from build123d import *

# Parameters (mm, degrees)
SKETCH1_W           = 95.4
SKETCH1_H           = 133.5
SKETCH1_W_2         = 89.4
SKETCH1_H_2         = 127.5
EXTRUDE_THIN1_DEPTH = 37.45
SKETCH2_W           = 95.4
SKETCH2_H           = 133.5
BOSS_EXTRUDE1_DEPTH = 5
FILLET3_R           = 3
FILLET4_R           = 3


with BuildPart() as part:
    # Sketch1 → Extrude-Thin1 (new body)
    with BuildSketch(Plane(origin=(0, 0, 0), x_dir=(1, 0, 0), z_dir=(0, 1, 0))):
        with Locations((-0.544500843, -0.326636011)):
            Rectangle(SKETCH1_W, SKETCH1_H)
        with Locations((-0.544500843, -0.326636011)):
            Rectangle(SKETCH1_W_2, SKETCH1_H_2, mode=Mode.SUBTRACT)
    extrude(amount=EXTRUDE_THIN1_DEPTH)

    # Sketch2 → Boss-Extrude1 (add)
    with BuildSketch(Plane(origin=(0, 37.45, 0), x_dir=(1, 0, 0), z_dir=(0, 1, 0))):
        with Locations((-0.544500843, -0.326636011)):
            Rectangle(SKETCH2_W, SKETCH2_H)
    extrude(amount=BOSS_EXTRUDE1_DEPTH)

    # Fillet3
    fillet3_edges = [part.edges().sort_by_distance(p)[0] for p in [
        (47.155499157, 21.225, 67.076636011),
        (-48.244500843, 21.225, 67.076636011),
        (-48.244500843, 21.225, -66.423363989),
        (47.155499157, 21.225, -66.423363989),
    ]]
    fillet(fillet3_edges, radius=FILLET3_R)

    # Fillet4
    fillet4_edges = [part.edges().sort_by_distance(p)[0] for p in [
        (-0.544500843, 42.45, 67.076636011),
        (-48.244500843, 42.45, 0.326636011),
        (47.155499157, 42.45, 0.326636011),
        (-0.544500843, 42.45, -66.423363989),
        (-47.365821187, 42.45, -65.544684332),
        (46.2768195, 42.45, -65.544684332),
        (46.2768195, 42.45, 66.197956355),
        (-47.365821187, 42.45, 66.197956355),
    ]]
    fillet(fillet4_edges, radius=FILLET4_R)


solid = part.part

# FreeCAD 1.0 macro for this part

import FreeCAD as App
import Part
import Sketcher

V = App.Vector


def edges_at(feature, points):
    """Names of the edges that pass closest to the given points."""
    edges = feature.Shape.Edges
    near = lambda p: min(range(len(edges)), key=lambda i: edges[i].distToShape(Part.Vertex(*p))[0])
    return sorted({f"Edge{near(p) + 1}" for p in points})

doc = App.newDocument("Part")
params = doc.addObject("Spreadsheet::Sheet", "Params")
for row, (alias, value) in enumerate([
    ("sketch1_width", "95.4 mm"),
    ("sketch1_width2", "89.4 mm"),
    ("sketch1_height", "133.5 mm"),
    ("sketch1_height2", "127.5 mm"),
    ("pad1_length", "37.45 mm"),
    ("sketch2_width", "95.4 mm"),
    ("sketch2_height", "133.5 mm"),
    ("pad2_length", "5 mm"),
    ("fillet_radius", "3 mm"),
    ("fillet2_radius", "3 mm"),
], start=1):
    params.set(f"A{row}", alias)
    params.set(f"B{row}", "=" + value)
    params.setAlias(f"B{row}", alias)

body = doc.addObject("PartDesign::Body", "Body")

sketch1 = doc.addObject("Sketcher::SketchObject", "Sketch")
body.addObject(sketch1)
sketch1.AttachmentSupport = (doc.XZ_Plane, [""])
sketch1.MapMode = "FlatFace"
sketch1.addGeometry([
    Part.LineSegment(V(-48, -66, 0), V(-48, 67, 0)),
    Part.LineSegment(V(-48, 67, 0), V(47, 67, 0)),
    Part.LineSegment(V(47, 67, 0), V(47, -66, 0)),
    Part.LineSegment(V(47, -66, 0), V(-48, -66, 0)),
    Part.LineSegment(V(44, 64, 0), V(-45, 64, 0)),
    Part.LineSegment(V(-45, 64, 0), V(-45, -63, 0)),
    Part.LineSegment(V(-45, -63, 0), V(44, -63, 0)),
    Part.LineSegment(V(44, -63, 0), V(44, 64, 0)),
], False)
sketch1.addConstraint([
    Sketcher.Constraint("Coincident", 0, 2, 1, 1),
    Sketcher.Constraint("Coincident", 1, 2, 2, 1),
    Sketcher.Constraint("Coincident", 2, 2, 3, 1),
    Sketcher.Constraint("Coincident", 3, 2, 0, 1),
    Sketcher.Constraint("Coincident", 4, 2, 5, 1),
    Sketcher.Constraint("Coincident", 5, 2, 6, 1),
    Sketcher.Constraint("Coincident", 6, 2, 7, 1),
    Sketcher.Constraint("Coincident", 7, 2, 4, 1),
    Sketcher.Constraint("Vertical", 0),
    Sketcher.Constraint("Horizontal", 1),
    Sketcher.Constraint("Vertical", 2),
    Sketcher.Constraint("Horizontal", 3),
    Sketcher.Constraint("Horizontal", 4),
    Sketcher.Constraint("Vertical", 5),
    Sketcher.Constraint("Horizontal", 6),
    Sketcher.Constraint("Vertical", 7),
    Sketcher.Constraint("DistanceX", 1, 1, 1, 2, 95.4),
    Sketcher.Constraint("DistanceX", 4, 2, 4, 1, 89.4),
    Sketcher.Constraint("DistanceY", 0, 1, 0, 2, 133.5),
    Sketcher.Constraint("DistanceY", 5, 2, 5, 1, 127.5),
    Sketcher.Constraint("DistanceX", 0, 2, 4, 2, 3.0),
    Sketcher.Constraint("DistanceY", 4, 2, 0, 2, 3.0),
    Sketcher.Constraint("DistanceX", 0, 2, -1, 1, 48.244501),
    Sketcher.Constraint("DistanceY", -1, 1, 0, 2, 67.076636),
])
sketch1.setExpression("Constraints[16]", "Params.sketch1_width")
sketch1.setExpression("Constraints[17]", "Params.sketch1_width2")
sketch1.setExpression("Constraints[18]", "Params.sketch1_height")
sketch1.setExpression("Constraints[19]", "Params.sketch1_height2")
pad1 = doc.addObject("PartDesign::Pad", "Pad")
body.addObject(pad1)
pad1.Profile = sketch1
pad1.setExpression("Length", "Params.pad1_length")
pad1.Reversed = True

sketch2 = doc.addObject("Sketcher::SketchObject", "Sketch001")
body.addObject(sketch2)
sketch2.AttachmentSupport = (doc.XZ_Plane, [""])
sketch2.MapMode = "FlatFace"
sketch2.AttachmentOffset = App.Placement(V(0, 0, -37.45), App.Rotation())
sketch2.addGeometry([
    Part.LineSegment(V(-48, -66, 0), V(-48, 67, 0)),
    Part.LineSegment(V(-48, 67, 0), V(47, 67, 0)),
    Part.LineSegment(V(47, 67, 0), V(47, -66, 0)),
    Part.LineSegment(V(47, -66, 0), V(-48, -66, 0)),
], False)
sketch2.addConstraint([
    Sketcher.Constraint("Coincident", 0, 2, 1, 1),
    Sketcher.Constraint("Coincident", 1, 2, 2, 1),
    Sketcher.Constraint("Coincident", 2, 2, 3, 1),
    Sketcher.Constraint("Coincident", 3, 2, 0, 1),
    Sketcher.Constraint("Vertical", 0),
    Sketcher.Constraint("Horizontal", 1),
    Sketcher.Constraint("Vertical", 2),
    Sketcher.Constraint("Horizontal", 3),
    Sketcher.Constraint("DistanceX", 1, 1, 1, 2, 95.4),
    Sketcher.Constraint("DistanceY", 0, 1, 0, 2, 133.5),
    Sketcher.Constraint("DistanceX", 0, 2, -1, 1, 48.244501),
    Sketcher.Constraint("DistanceY", -1, 1, 0, 2, 67.076636),
])
sketch2.setExpression("Constraints[8]", "Params.sketch2_width")
sketch2.setExpression("Constraints[9]", "Params.sketch2_height")
pad2 = doc.addObject("PartDesign::Pad", "Pad001")
body.addObject(pad2)
pad2.Profile = sketch2
pad2.setExpression("Length", "Params.pad2_length")
pad2.Reversed = True
doc.recompute()

fillet = doc.addObject("PartDesign::Fillet", "Fillet")
body.addObject(fillet)
fillet.Base = (pad2, edges_at(pad2, [
    (47.155, 21.225, 67.077),
    (-48.245, 21.225, 67.077),
    (-48.245, 21.225, -66.423),
    (47.155, 21.225, -66.423),
]))
fillet.setExpression("Radius", "Params.fillet_radius")
doc.recompute()

fillet2 = doc.addObject("PartDesign::Fillet", "Fillet001")
body.addObject(fillet2)
fillet2.Base = (fillet, edges_at(fillet, [
    (-0.545, 42.45, 67.077),
    (-48.245, 42.45, 0.327),
    (47.155, 42.45, 0.327),
    (-0.545, 42.45, -66.423),
    (-47.366, 42.45, -65.545),
    (46.277, 42.45, -65.545),
    (46.277, 42.45, 66.198),
    (-47.366, 42.45, 66.198),
]))
fillet2.setExpression("Radius", "Params.fillet2_radius")

doc.recompute()
